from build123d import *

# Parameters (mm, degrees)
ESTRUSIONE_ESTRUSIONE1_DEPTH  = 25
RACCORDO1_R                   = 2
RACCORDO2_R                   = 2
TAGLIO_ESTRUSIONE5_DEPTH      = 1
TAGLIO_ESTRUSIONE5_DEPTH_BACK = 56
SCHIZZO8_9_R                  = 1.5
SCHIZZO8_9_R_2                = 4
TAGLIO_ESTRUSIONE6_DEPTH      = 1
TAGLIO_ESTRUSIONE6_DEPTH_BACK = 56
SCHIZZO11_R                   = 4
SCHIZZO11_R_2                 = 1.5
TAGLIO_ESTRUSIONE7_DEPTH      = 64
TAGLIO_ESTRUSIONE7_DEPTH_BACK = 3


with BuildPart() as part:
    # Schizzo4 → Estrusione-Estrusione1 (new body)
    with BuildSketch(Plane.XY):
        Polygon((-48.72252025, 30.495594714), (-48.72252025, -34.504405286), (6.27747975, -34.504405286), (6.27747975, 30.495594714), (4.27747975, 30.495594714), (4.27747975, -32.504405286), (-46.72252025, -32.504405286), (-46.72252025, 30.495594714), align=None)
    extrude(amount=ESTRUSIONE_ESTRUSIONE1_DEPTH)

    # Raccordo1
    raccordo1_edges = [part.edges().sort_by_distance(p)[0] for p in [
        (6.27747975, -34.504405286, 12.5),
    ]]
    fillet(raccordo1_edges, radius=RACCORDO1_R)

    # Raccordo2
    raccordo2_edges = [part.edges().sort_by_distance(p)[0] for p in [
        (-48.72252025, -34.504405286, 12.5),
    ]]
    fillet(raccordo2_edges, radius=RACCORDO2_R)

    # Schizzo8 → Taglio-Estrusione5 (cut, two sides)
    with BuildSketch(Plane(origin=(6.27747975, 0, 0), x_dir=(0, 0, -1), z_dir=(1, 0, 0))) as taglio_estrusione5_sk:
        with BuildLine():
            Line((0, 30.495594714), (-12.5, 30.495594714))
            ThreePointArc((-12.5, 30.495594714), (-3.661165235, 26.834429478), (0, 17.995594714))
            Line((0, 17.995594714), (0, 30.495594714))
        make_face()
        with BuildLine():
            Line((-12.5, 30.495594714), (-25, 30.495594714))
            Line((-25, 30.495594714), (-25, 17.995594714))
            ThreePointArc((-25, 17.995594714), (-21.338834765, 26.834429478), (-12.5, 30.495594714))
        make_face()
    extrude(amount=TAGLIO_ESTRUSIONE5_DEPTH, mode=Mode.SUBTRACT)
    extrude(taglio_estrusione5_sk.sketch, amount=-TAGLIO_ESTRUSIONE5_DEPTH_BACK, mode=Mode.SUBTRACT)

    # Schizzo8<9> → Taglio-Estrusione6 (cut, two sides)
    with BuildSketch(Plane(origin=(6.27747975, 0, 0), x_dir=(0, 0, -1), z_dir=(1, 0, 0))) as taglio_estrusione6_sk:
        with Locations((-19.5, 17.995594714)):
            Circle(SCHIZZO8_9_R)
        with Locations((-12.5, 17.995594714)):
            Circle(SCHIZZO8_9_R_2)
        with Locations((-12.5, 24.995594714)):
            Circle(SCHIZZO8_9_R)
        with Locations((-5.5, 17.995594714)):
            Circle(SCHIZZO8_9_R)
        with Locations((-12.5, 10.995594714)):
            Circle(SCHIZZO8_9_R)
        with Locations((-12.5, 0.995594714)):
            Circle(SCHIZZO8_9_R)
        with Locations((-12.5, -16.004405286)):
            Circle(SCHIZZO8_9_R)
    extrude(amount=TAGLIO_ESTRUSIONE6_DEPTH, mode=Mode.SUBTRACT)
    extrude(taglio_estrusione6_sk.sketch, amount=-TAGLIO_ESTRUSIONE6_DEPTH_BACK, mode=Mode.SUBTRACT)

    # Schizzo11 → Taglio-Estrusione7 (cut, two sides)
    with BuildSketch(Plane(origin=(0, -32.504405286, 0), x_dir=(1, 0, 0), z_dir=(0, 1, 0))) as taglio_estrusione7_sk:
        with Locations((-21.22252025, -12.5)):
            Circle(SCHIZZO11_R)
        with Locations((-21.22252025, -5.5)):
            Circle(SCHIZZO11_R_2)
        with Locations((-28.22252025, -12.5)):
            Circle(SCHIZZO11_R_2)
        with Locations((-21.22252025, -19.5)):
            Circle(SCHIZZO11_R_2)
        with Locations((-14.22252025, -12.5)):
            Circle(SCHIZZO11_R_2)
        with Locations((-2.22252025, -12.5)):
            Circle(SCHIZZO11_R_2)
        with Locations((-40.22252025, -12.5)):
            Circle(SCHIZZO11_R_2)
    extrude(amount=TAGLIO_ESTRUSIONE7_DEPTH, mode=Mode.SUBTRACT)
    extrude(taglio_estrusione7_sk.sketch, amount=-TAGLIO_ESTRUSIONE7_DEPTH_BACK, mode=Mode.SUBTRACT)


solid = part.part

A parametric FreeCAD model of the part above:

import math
import FreeCAD as App
import Part
import Sketcher

V = App.Vector


def edges_at(feature, points):
    """Names of the edges that pass closest to the given points."""
    edges = feature.Shape.Edges
    near = lambda p: min(range(len(edges)), key=lambda i: edges[i].distToShape(Part.Vertex(*p))[0])
    return sorted({f"Edge{near(p) + 1}" for p in points})


def add_polygon(sketch, points):
    """Adds a closed chain of lines whose ends are joined by coincident constraints."""
    first, n = sketch.GeometryCount, len(points)
    for a, b in zip(points, points[1:] + points[:1]):
        sketch.addGeometry(Part.LineSegment(App.Vector(*a, 0), App.Vector(*b, 0)), False)
    for i in range(n):
        sketch.addConstraint(Sketcher.Constraint("Coincident", first + i, 2, first + (i + 1) % n, 1))

doc = App.newDocument("Part")
body = doc.addObject("PartDesign::Body", "Body")

# Sketch on XY plane
sketch1 = body.newObject("Sketcher::SketchObject", "Sketch")
sketch1.AttachmentSupport = (doc.getObject("XY_Plane"), [""])
sketch1.MapMode = "FlatFace"
add_polygon(sketch1, [(-48.7, 30.5), (-48.7, -34.5), (6.3, -34.5), (6.3, 30.5), (4.3, 30.5), (4.3, -32.5), (-46.7, -32.5), (-46.7, 30.5)])  # lines 0-7
sketch1.addConstraint(Sketcher.Constraint("Vertical", 0))
sketch1.addConstraint(Sketcher.Constraint("Horizontal", 1))
sketch1.addConstraint(Sketcher.Constraint("Vertical", 2))
sketch1.addConstraint(Sketcher.Constraint("Horizontal", 3))
sketch1.addConstraint(Sketcher.Constraint("Vertical", 4))
sketch1.addConstraint(Sketcher.Constraint("Horizontal", 5))
sketch1.addConstraint(Sketcher.Constraint("Vertical", 6))
sketch1.addConstraint(Sketcher.Constraint("Horizontal", 7))
sketch1.addConstraint(Sketcher.Constraint("Horizontal", 3, 2, 6, 2))
sketch1.addConstraint(Sketcher.Constraint("Equal", 3, 7))
sketch1.addConstraint(Sketcher.Constraint("DistanceX", 1, 1, 1, 2, 55.0))
sketch1.addConstraint(Sketcher.Constraint("DistanceX", 3, 2, 3, 1, 2.0))
sketch1.addConstraint(Sketcher.Constraint("DistanceY", 0, 2, 0, 1, 65.0))
sketch1.addConstraint(Sketcher.Constraint("DistanceY", 4, 2, 4, 1, 63.0))
sketch1.addConstraint(Sketcher.Constraint("DistanceX", 0, 2, -1, 1, 48.72252))
sketch1.addConstraint(Sketcher.Constraint("DistanceY", 0, 2, -1, 1, 34.504405))
pad1 = body.newObject("PartDesign::Pad", "Pad")
pad1.Profile = sketch1
pad1.Length = 25
doc.recompute()

fillet = body.newObject("PartDesign::Fillet", "Fillet")
fillet.Base = (pad1, edges_at(pad1, [(6.277, -34.504, 12.5)]))
fillet.Radius = 2
doc.recompute()

fillet2 = body.newObject("PartDesign::Fillet", "Fillet001")
fillet2.Base = (fillet, edges_at(fillet, [(-48.723, -34.504, 12.5)]))
fillet2.Radius = 2

# Sketch on YZ plane
sketch2 = body.newObject("Sketcher::SketchObject", "Sketch001")
sketch2.AttachmentSupport = (doc.getObject("YZ_Plane"), [""])
sketch2.MapMode = "FlatFace"
sketch2.AttachmentOffset = App.Placement(V(0, 0, 6.27748), App.Rotation())
sketch2.addGeometry(Part.LineSegment(V(30, 0, 0), V(30, 12, 0)), False)
sketch2.addGeometry(Part.ArcOfCircle(Part.Circle(V(18, 13, 0), V(0, 0, 1), 13), math.radians(-90), math.radians(0)), False)
sketch2.addGeometry(Part.LineSegment(V(18, 0, 0), V(30, 0, 0)), False)
sketch2.addGeometry(Part.LineSegment(V(30, 12, 0), V(30, 25, 0)), False)
sketch2.addGeometry(Part.LineSegment(V(30, 25, 0), V(18, 25, 0)), False)
sketch2.addGeometry(Part.ArcOfCircle(Part.Circle(V(18, 12, 0), V(0, 0, 1), 13), math.radians(0), math.radians(90)), False)
sketch2.addConstraint(Sketcher.Constraint("Tangent", 0, 2, 1, 2))
sketch2.addConstraint(Sketcher.Constraint("Tangent", 1, 1, 2, 1))
sketch2.addConstraint(Sketcher.Constraint("Coincident", 2, 2, 0, 1))
sketch2.addConstraint(Sketcher.Constraint("Coincident", 3, 2, 4, 1))
sketch2.addConstraint(Sketcher.Constraint("Tangent", 4, 2, 5, 2))
sketch2.addConstraint(Sketcher.Constraint("Tangent", 5, 1, 3, 1))
sketch2.addConstraint(Sketcher.Constraint("Vertical", 0))
sketch2.addConstraint(Sketcher.Constraint("Horizontal", 2))
sketch2.addConstraint(Sketcher.Constraint("Vertical", 3))
sketch2.addConstraint(Sketcher.Constraint("Horizontal", 4))
sketch2.addConstraint(Sketcher.Constraint("Coincident", 5, 3, 1, 3))
sketch2.addConstraint(Sketcher.Constraint("Equal", 1, 5))
sketch2.addConstraint(Sketcher.Constraint("PointOnObject", 1, 1, -1))
sketch2.addConstraint(Sketcher.Constraint("Radius", 1, 12.5))
sketch2.addConstraint(Sketcher.Constraint("DistanceX", -1, 1, 1, 3, 17.995595))
pocket1 = body.newObject("PartDesign::Pocket", "Pocket")
pocket1.Profile = sketch2
pocket1.Type = "ThroughAll"
pocket1.Midplane = True

# Sketch on YZ plane
sketch3 = body.newObject("Sketcher::SketchObject", "Sketch002")
sketch3.AttachmentSupport = (doc.getObject("YZ_Plane"), [""])
sketch3.MapMode = "FlatFace"
sketch3.AttachmentOffset = App.Placement(V(0, 0, 6.27748), App.Rotation())
sketch3.addGeometry(Part.Circle(V(18, 19.5, 0), V(0, 0, 1), 1.5), False)
sketch3.addGeometry(Part.Circle(V(18, 12.5, 0), V(0, 0, 1), 4), False)
sketch3.addGeometry(Part.Circle(V(25, 12.5, 0), V(0, 0, 1), 1.5), False)
sketch3.addGeometry(Part.Circle(V(18, 5.5, 0), V(0, 0, 1), 1.5), False)
sketch3.addGeometry(Part.Circle(V(11, 12.5, 0), V(0, 0, 1), 1.5), False)
sketch3.addGeometry(Part.Circle(V(1, 12.5, 0), V(0, 0, 1), 1.5), False)
sketch3.addGeometry(Part.Circle(V(-16, 12.5, 0), V(0, 0, 1), 1.5), False)
sketch3.addConstraint(Sketcher.Constraint("Equal", 0, 2))
sketch3.addConstraint(Sketcher.Constraint("Equal", 2, 3))
sketch3.addConstraint(Sketcher.Constraint("Equal", 3, 4))
sketch3.addConstraint(Sketcher.Constraint("Equal", 4, 5))
sketch3.addConstraint(Sketcher.Constraint("Equal", 5, 6))
sketch3.addConstraint(Sketcher.Constraint("Horizontal", 1, 3, 2, 3))
sketch3.addConstraint(Sketcher.Constraint("Horizontal", 2, 3, 4, 3))
sketch3.addConstraint(Sketcher.Constraint("Horizontal", 4, 3, 5, 3))
sketch3.addConstraint(Sketcher.Constraint("Horizontal", 5, 3, 6, 3))
sketch3.addConstraint(Sketcher.Constraint("Vertical", 0, 3, 1, 3))
sketch3.addConstraint(Sketcher.Constraint("Vertical", 1, 3, 3, 3))
sketch3.addConstraint(Sketcher.Constraint("Diameter", 0, 3.0))
sketch3.addConstraint(Sketcher.Constraint("Diameter", 1, 8.0))
sketch3.addConstraint(Sketcher.Constraint("DistanceY", 1, 3, 0, 3, 7.0))
sketch3.addConstraint(Sketcher.Constraint("DistanceX", 1, 3, 2, 3, 7.0))
sketch3.addConstraint(Sketcher.Constraint("DistanceY", 3, 3, 1, 3, 7.0))
sketch3.addConstraint(Sketcher.Constraint("DistanceX", 4, 3, 1, 3, 7.0))
sketch3.addConstraint(Sketcher.Constraint("DistanceX", 5, 3, 4, 3, 10.0))
sketch3.addConstraint(Sketcher.Constraint("DistanceX", 6, 3, 5, 3, 17.0))
sketch3.addConstraint(Sketcher.Constraint("DistanceY", -1, 1, 0, 3, 19.5))
sketch3.addConstraint(Sketcher.Constraint("DistanceX", -1, 1, 0, 3, 17.995595))
pocket2 = body.newObject("PartDesign::Pocket", "Pocket001")
pocket2.Profile = sketch3
pocket2.Type = "ThroughAll"
pocket2.Midplane = True

# Sketch on XZ plane
sketch4 = body.newObject("Sketcher::SketchObject", "Sketch003")
sketch4.AttachmentSupport = (doc.getObject("XZ_Plane"), [""])
sketch4.MapMode = "FlatFace"
sketch4.AttachmentOffset = App.Placement(V(0, 0, 32.504405), App.Rotation())
sketch4.addGeometry(Part.Circle(V(-21.2, 12.5, 0), V(0, 0, 1), 4), False)
sketch4.addGeometry(Part.Circle(V(-21.2, 5.5, 0), V(0, 0, 1), 1.5), False)
sketch4.addGeometry(Part.Circle(V(-28.2, 12.5, 0), V(0, 0, 1), 1.5), False)
sketch4.addGeometry(Part.Circle(V(-21.2, 19.5, 0), V(0, 0, 1), 1.5), False)
sketch4.addGeometry(Part.Circle(V(-14.2, 12.5, 0), V(0, 0, 1), 1.5), False)
sketch4.addGeometry(Part.Circle(V(-2.2, 12.5, 0), V(0, 0, 1), 1.5), False)
sketch4.addGeometry(Part.Circle(V(-40.2, 12.5, 0), V(0, 0, 1), 1.5), False)
sketch4.addConstraint(Sketcher.Constraint("Equal", 1, 2))
sketch4.addConstraint(Sketcher.Constraint("Equal", 2, 3))
sketch4.addConstraint(Sketcher.Constraint("Equal", 3, 4))
sketch4.addConstraint(Sketcher.Constraint("Equal", 4, 5))
sketch4.addConstraint(Sketcher.Constraint("Equal", 5, 6))
sketch4.addConstraint(Sketcher.Constraint("Horizontal", 0, 3, 2, 3))
sketch4.addConstraint(Sketcher.Constraint("Horizontal", 2, 3, 4, 3))
sketch4.addConstraint(Sketcher.Constraint("Horizontal", 4, 3, 5, 3))
sketch4.addConstraint(Sketcher.Constraint("Horizontal", 5, 3, 6, 3))
sketch4.addConstraint(Sketcher.Constraint("Vertical", 0, 3, 1, 3))
sketch4.addConstraint(Sketcher.Constraint("Vertical", 1, 3, 3, 3))
sketch4.addConstraint(Sketcher.Constraint("Diameter", 0, 8.0))
sketch4.addConstraint(Sketcher.Constraint("Diameter", 1, 3.0))
sketch4.addConstraint(Sketcher.Constraint("DistanceY", 1, 3, 0, 3, 7.0))
sketch4.addConstraint(Sketcher.Constraint("DistanceX", 2, 3, 0, 3, 7.0))
sketch4.addConstraint(Sketcher.Constraint("DistanceY", 0, 3, 3, 3, 7.0))
sketch4.addConstraint(Sketcher.Constraint("DistanceX", 0, 3, 4, 3, 7.0))
sketch4.addConstraint(Sketcher.Constraint("DistanceX", 4, 3, 5, 3, 12.0))
sketch4.addConstraint(Sketcher.Constraint("DistanceX", 6, 3, 2, 3, 12.0))
sketch4.addConstraint(Sketcher.Constraint("DistanceY", -1, 1, 0, 3, 12.5))
sketch4.addConstraint(Sketcher.Constraint("DistanceX", 0, 3, -1, 1, 21.22252))
pocket3 = body.newObject("PartDesign::Pocket", "Pocket002")
pocket3.Profile = sketch4
pocket3.Type = "ThroughAll"
pocket3.Midplane = True

doc.recompute()
